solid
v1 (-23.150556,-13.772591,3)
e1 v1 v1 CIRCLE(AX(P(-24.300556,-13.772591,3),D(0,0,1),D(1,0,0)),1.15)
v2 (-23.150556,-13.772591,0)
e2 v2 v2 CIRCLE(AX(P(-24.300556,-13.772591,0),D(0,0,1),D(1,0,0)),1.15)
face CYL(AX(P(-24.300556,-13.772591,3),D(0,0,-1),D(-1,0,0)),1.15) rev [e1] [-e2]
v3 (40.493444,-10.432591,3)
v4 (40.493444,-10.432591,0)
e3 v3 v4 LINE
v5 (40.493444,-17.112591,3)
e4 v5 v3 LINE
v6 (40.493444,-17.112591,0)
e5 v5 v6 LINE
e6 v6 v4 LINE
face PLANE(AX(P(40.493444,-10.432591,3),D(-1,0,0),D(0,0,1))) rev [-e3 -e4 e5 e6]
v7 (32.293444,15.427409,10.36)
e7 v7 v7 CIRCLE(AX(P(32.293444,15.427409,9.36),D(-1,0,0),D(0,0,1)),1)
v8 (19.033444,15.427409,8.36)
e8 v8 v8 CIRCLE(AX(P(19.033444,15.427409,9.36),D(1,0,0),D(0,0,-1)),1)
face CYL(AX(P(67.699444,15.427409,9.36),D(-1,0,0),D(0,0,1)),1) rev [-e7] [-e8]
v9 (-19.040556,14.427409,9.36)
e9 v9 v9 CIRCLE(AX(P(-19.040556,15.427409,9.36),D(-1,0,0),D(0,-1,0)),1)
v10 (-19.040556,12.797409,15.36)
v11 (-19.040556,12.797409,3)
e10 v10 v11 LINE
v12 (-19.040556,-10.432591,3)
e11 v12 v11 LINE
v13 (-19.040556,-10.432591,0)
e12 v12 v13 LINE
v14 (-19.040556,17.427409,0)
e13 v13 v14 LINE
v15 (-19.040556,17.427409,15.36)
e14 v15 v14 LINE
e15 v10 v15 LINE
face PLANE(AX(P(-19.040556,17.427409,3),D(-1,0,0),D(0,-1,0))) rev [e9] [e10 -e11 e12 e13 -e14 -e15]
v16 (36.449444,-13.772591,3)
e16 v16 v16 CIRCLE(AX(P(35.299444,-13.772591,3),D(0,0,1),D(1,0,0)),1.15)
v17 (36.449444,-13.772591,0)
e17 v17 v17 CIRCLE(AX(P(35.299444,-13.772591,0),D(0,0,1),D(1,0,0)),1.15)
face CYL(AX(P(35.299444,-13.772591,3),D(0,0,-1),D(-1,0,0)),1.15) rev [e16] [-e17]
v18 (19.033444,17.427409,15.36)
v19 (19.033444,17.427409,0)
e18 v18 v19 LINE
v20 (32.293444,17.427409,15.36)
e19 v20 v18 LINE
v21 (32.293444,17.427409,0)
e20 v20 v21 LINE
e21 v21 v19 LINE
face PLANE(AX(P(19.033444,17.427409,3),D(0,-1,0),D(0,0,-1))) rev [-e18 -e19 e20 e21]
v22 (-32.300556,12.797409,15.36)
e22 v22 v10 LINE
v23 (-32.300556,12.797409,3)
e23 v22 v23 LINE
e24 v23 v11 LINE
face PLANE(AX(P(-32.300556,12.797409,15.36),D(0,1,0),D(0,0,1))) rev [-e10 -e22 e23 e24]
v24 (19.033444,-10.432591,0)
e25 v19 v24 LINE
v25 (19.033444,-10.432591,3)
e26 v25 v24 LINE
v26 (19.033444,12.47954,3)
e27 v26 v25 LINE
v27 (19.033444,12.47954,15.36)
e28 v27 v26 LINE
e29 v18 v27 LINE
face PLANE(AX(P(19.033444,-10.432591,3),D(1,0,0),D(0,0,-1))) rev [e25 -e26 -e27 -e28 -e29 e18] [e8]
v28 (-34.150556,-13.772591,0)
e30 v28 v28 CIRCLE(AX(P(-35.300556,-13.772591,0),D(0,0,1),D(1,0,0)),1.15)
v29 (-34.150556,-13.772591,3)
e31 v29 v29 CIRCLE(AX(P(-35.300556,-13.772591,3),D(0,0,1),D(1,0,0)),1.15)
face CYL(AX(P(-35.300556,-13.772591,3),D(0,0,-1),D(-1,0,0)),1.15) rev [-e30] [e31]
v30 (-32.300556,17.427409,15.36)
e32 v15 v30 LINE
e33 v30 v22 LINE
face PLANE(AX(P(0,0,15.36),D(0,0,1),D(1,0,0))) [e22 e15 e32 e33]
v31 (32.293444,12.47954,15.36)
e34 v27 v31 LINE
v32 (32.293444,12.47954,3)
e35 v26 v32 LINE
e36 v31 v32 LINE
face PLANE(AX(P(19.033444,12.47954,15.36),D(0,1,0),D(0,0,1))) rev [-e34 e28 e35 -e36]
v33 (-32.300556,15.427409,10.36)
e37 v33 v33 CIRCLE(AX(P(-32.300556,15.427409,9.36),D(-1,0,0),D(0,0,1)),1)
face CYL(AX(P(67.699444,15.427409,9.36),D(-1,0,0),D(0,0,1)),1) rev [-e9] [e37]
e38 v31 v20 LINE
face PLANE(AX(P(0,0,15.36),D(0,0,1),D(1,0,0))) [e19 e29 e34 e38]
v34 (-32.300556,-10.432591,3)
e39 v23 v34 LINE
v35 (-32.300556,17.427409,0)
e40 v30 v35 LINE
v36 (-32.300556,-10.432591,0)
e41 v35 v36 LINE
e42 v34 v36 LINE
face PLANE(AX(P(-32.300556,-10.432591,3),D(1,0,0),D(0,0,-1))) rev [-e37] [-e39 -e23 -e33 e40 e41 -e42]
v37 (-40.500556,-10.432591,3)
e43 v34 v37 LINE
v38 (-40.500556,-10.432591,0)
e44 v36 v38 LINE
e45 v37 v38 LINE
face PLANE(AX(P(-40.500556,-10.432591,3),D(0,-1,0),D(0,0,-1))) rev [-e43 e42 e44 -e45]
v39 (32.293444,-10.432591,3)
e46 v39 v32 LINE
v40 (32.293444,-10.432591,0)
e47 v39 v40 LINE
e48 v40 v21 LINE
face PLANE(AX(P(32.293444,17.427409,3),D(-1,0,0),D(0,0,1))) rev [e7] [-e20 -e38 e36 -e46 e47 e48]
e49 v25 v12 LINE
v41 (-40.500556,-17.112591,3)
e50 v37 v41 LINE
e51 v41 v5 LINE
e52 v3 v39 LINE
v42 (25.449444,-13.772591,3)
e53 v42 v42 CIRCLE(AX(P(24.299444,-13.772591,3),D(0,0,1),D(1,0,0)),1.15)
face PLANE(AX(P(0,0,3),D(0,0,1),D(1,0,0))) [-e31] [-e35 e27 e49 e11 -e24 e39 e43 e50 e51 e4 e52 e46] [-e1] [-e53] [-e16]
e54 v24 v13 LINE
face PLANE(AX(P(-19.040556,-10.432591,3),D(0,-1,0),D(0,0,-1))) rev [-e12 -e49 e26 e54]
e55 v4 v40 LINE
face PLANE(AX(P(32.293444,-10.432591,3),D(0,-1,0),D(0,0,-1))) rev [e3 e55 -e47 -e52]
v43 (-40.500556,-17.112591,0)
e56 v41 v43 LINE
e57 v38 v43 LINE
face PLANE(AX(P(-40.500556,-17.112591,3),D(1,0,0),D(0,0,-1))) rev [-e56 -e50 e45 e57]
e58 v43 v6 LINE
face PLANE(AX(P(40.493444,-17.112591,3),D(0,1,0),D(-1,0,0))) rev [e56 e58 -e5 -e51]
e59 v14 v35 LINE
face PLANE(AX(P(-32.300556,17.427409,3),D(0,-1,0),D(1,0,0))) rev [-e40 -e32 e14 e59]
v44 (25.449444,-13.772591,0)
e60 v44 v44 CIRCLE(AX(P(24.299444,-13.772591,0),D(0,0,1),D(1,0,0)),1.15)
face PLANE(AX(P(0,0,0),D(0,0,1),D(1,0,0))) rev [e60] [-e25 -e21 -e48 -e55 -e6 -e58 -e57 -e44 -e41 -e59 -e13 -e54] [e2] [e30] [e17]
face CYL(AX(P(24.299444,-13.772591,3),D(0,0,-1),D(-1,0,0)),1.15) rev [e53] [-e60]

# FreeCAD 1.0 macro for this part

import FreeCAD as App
import Part
import Sketcher

V = App.Vector
Q = App.Units.Quantity

doc = App.newDocument("Part")
params = doc.addObject("Spreadsheet::Sheet", "Params")
for row, (alias, value) in enumerate([
    ("sketch1_diameter", "2.3 mm"),
    ("sketch1_width", "8.2 mm"),
    ("sketch1_width2", "13.26 mm"),
    ("sketch1_height", "27.86 mm"),
    ("sketch1_height2", "6.68 mm"),
    ("pad1_length", "3 mm"),
    ("sketch2_width", "13.26 mm"),
    ("sketch2_height", "4.63 mm"),
    ("pad2_length", "12.36 mm"),
    ("sketch3_diameter", "2 mm"),
    ("pocket1_length", "100 mm"),
], start=1):
    params.set(f"A{row}", alias)
    params.set(f"B{row}", "=" + value)
    params.setAlias(f"B{row}", alias)

body = doc.addObject("PartDesign::Body", "Body")

sketch1 = body.newObject("Sketcher::SketchObject", "Sketch")
sketch1.AttachmentSupport = (doc.getObject("XY_Plane"), [""])
sketch1.MapMode = "FlatFace"
sketch1.addGeometry([
    Part.LineSegment(V(-32.3, 17.4, 0), V(-32.3, -10.4, 0)),
    Part.LineSegment(V(-32.3, -10.4, 0), V(-40.5, -10.4, 0)),
    Part.LineSegment(V(-40.5, -10.4, 0), V(-40.5, -17.1, 0)),
    Part.LineSegment(V(-40.5, -17.1, 0), V(40.5, -17.1, 0)),
    Part.LineSegment(V(40.5, -17.1, 0), V(40.5, -10.4, 0)),
    Part.LineSegment(V(40.5, -10.4, 0), V(32.3, -10.4, 0)),
    Part.LineSegment(V(32.3, -10.4, 0), V(32.3, 17.4, 0)),
    Part.LineSegment(V(32.3, 17.4, 0), V(19, 17.4, 0)),
    Part.LineSegment(V(19, 17.4, 0), V(19, -10.4, 0)),
    Part.LineSegment(V(19, -10.4, 0), V(-19, -10.4, 0)),
    Part.LineSegment(V(-19, -10.4, 0), V(-19, 17.4, 0)),
    Part.LineSegment(V(-19, 17.4, 0), V(-32.3, 17.4, 0)),
    Part.Circle(V(35.3, -13.8, 0), V(0, 0, 1), 1.1),
    Part.Circle(V(24.3, -13.8, 0), V(0, 0, 1), 1.1),
    Part.Circle(V(-24.3, -13.8, 0), V(0, 0, 1), 1.1),
    Part.Circle(V(-35.3, -13.8, 0), V(0, 0, 1), 1.1),
], False)
sketch1.addConstraint([
    Sketcher.Constraint("Coincident", 0, 2, 1, 1),
    Sketcher.Constraint("Coincident", 1, 2, 2, 1),
    Sketcher.Constraint("Coincident", 2, 2, 3, 1),
    Sketcher.Constraint("Coincident", 3, 2, 4, 1),
    Sketcher.Constraint("Coincident", 4, 2, 5, 1),
    Sketcher.Constraint("Coincident", 5, 2, 6, 1),
    Sketcher.Constraint("Coincident", 6, 2, 7, 1),
    Sketcher.Constraint("Coincident", 7, 2, 8, 1),
    Sketcher.Constraint("Coincident", 8, 2, 9, 1),
    Sketcher.Constraint("Coincident", 9, 2, 10, 1),
    Sketcher.Constraint("Coincident", 10, 2, 11, 1),
    Sketcher.Constraint("Coincident", 11, 2, 0, 1),
    Sketcher.Constraint("Vertical", 0),
    Sketcher.Constraint("Horizontal", 1),
    Sketcher.Constraint("Vertical", 2),
    Sketcher.Constraint("Horizontal", 3),
    Sketcher.Constraint("Vertical", 4),
    Sketcher.Constraint("Horizontal", 5),
    Sketcher.Constraint("Vertical", 6),
    Sketcher.Constraint("Horizontal", 7),
    Sketcher.Constraint("Vertical", 8),
    Sketcher.Constraint("Horizontal", 9),
    Sketcher.Constraint("Vertical", 10),
    Sketcher.Constraint("Horizontal", 11),
    Sketcher.Constraint("Equal", 12, 13),
    Sketcher.Constraint("Equal", 13, 14),
    Sketcher.Constraint("Equal", 14, 15),
    Sketcher.Constraint("Horizontal", 12, 3, 13, 3),
    Sketcher.Constraint("Horizontal", 13, 3, 14, 3),
    Sketcher.Constraint("Horizontal", 14, 3, 15, 3),
    Sketcher.Constraint("Horizontal", 1, 2, 4, 2),
    Sketcher.Constraint("Horizontal", 5, 2, 8, 2),
    Sketcher.Constraint("Horizontal", 7, 2, 10, 2),
    Sketcher.Constraint("Equal", 1, 5),
    Sketcher.Constraint("Equal", 7, 11),
    Sketcher.Constraint("Diameter", 12, Q("2.3 mm")),
    Sketcher.Constraint("DistanceX", 1, 2, 1, 1, Q("8.2 mm")),
    Sketcher.Constraint("DistanceX", 13, 3, 12, 3, Q("11 mm")),
    Sketcher.Constraint("DistanceX", 15, 3, 14, 3, Q("11 mm")),
    Sketcher.Constraint("DistanceX", 15, 3, 0, 2, Q("3 mm")),
    Sketcher.Constraint("DistanceX", 7, 2, 7, 1, Q("13.26 mm")),
    Sketcher.Constraint("DistanceY", 0, 2, 0, 1, Q("27.86 mm")),
    Sketcher.Constraint("DistanceY", 2, 2, 2, 1, Q("6.68 mm")),
    Sketcher.Constraint("DistanceX", 14, 3, 13, 3, Q("48.6 mm")),
    Sketcher.Constraint("DistanceY", 12, 3, 6, 2, Q("31.2 mm")),
    Sketcher.Constraint("DistanceX", 3, 1, 3, 2, Q("80.994 mm")),
    Sketcher.Constraint("DistanceY", 12, 3, -1, 1, Q("13.772591 mm")),
    Sketcher.Constraint("DistanceX", -1, 1, 12, 3, Q("35.299444 mm")),
])
sketch1.setExpression("Constraints[35]", "Params.sketch1_diameter")
sketch1.setExpression("Constraints[36]", "Params.sketch1_width")
sketch1.setExpression("Constraints[40]", "Params.sketch1_width2")
sketch1.setExpression("Constraints[41]", "Params.sketch1_height")
sketch1.setExpression("Constraints[42]", "Params.sketch1_height2")
pad1 = body.newObject("PartDesign::Pad", "Pad")
pad1.Profile = sketch1
pad1.setExpression("Length", "Params.pad1_length")

sketch2 = body.newObject("Sketcher::SketchObject", "Sketch001")
sketch2.AttachmentSupport = (doc.getObject("XY_Plane"), [""])
sketch2.MapMode = "FlatFace"
sketch2.AttachmentOffset = App.Placement(V(0, 0, 3), App.Rotation())
sketch2.addGeometry([
    Part.LineSegment(V(-32.3, 17.4, 0), V(-32.3, 12.8, 0)),
    Part.LineSegment(V(-32.3, 12.8, 0), V(-19, 12.8, 0)),
    Part.LineSegment(V(-19, 12.8, 0), V(-19, 17.4, 0)),
    Part.LineSegment(V(-19, 17.4, 0), V(-32.3, 17.4, 0)),
    Part.LineSegment(V(19, 17.4, 0), V(19, 12.5, 0)),
    Part.LineSegment(V(19, 12.5, 0), V(32.3, 12.5, 0)),
    Part.LineSegment(V(32.3, 12.5, 0), V(32.3, 17.4, 0)),
    Part.LineSegment(V(32.3, 17.4, 0), V(19, 17.4, 0)),
], False)
sketch2.addConstraint([
    Sketcher.Constraint("Coincident", 0, 2, 1, 1),
    Sketcher.Constraint("Coincident", 1, 2, 2, 1),
    Sketcher.Constraint("Coincident", 2, 2, 3, 1),
    Sketcher.Constraint("Coincident", 3, 2, 0, 1),
    Sketcher.Constraint("Coincident", 4, 2, 5, 1),
    Sketcher.Constraint("Coincident", 5, 2, 6, 1),
    Sketcher.Constraint("Coincident", 6, 2, 7, 1),
    Sketcher.Constraint("Coincident", 7, 2, 4, 1),
    Sketcher.Constraint("Vertical", 0),
    Sketcher.Constraint("Horizontal", 1),
    Sketcher.Constraint("Vertical", 2),
    Sketcher.Constraint("Horizontal", 3),
    Sketcher.Constraint("Vertical", 4),
    Sketcher.Constraint("Horizontal", 5),
    Sketcher.Constraint("Vertical", 6),
    Sketcher.Constraint("Horizontal", 7),
    Sketcher.Constraint("Horizontal", 3, 2, 6, 2),
    Sketcher.Constraint("Equal", 3, 5),
    Sketcher.Constraint("DistanceX", 1, 1, 1, 2, Q("13.26 mm")),
    Sketcher.Constraint("DistanceY", 0, 2, 0, 1, Q("4.63 mm")),
    Sketcher.Constraint("DistanceX", 1, 2, 4, 2, Q("38.074 mm")),
    Sketcher.Constraint("DistanceY", 4, 2, 4, 1, Q("4.947868 mm")),
    Sketcher.Constraint("DistanceY", -1, 1, 0, 2, Q("12.797409 mm")),
    Sketcher.Constraint("DistanceX", 0, 2, -1, 1, Q("32.300556 mm")),
])
sketch2.setExpression("Constraints[18]", "Params.sketch2_width")
sketch2.setExpression("Constraints[19]", "Params.sketch2_height")
pad2 = body.newObject("PartDesign::Pad", "Pad001")
pad2.Profile = sketch2
pad2.setExpression("Length", "Params.pad2_length")

sketch3 = body.newObject("Sketcher::SketchObject", "Sketch002")
sketch3.AttachmentSupport = (doc.getObject("YZ_Plane"), [""])
sketch3.MapMode = "FlatFace"
sketch3.AttachmentOffset = App.Placement(V(0, 0, -32.300556), App.Rotation())
sketch3.addGeometry(Part.Circle(V(15.4, 9.4, 0), V(0, 0, 1), 1), False)
sketch3.addConstraint([
    Sketcher.Constraint("Diameter", 0, Q("2 mm")),
    Sketcher.Constraint("DistanceY", -1, 1, 0, 3, Q("9.36 mm")),
    Sketcher.Constraint("DistanceX", -1, 1, 0, 3, Q("15.427409 mm")),
])
sketch3.setExpression("Constraints[0]", "Params.sketch3_diameter")
pocket1 = body.newObject("PartDesign::Pocket", "Pocket")
pocket1.Profile = sketch3
pocket1.setExpression("Length", "Params.pocket1_length")
pocket1.Reversed = True

doc.recompute()
